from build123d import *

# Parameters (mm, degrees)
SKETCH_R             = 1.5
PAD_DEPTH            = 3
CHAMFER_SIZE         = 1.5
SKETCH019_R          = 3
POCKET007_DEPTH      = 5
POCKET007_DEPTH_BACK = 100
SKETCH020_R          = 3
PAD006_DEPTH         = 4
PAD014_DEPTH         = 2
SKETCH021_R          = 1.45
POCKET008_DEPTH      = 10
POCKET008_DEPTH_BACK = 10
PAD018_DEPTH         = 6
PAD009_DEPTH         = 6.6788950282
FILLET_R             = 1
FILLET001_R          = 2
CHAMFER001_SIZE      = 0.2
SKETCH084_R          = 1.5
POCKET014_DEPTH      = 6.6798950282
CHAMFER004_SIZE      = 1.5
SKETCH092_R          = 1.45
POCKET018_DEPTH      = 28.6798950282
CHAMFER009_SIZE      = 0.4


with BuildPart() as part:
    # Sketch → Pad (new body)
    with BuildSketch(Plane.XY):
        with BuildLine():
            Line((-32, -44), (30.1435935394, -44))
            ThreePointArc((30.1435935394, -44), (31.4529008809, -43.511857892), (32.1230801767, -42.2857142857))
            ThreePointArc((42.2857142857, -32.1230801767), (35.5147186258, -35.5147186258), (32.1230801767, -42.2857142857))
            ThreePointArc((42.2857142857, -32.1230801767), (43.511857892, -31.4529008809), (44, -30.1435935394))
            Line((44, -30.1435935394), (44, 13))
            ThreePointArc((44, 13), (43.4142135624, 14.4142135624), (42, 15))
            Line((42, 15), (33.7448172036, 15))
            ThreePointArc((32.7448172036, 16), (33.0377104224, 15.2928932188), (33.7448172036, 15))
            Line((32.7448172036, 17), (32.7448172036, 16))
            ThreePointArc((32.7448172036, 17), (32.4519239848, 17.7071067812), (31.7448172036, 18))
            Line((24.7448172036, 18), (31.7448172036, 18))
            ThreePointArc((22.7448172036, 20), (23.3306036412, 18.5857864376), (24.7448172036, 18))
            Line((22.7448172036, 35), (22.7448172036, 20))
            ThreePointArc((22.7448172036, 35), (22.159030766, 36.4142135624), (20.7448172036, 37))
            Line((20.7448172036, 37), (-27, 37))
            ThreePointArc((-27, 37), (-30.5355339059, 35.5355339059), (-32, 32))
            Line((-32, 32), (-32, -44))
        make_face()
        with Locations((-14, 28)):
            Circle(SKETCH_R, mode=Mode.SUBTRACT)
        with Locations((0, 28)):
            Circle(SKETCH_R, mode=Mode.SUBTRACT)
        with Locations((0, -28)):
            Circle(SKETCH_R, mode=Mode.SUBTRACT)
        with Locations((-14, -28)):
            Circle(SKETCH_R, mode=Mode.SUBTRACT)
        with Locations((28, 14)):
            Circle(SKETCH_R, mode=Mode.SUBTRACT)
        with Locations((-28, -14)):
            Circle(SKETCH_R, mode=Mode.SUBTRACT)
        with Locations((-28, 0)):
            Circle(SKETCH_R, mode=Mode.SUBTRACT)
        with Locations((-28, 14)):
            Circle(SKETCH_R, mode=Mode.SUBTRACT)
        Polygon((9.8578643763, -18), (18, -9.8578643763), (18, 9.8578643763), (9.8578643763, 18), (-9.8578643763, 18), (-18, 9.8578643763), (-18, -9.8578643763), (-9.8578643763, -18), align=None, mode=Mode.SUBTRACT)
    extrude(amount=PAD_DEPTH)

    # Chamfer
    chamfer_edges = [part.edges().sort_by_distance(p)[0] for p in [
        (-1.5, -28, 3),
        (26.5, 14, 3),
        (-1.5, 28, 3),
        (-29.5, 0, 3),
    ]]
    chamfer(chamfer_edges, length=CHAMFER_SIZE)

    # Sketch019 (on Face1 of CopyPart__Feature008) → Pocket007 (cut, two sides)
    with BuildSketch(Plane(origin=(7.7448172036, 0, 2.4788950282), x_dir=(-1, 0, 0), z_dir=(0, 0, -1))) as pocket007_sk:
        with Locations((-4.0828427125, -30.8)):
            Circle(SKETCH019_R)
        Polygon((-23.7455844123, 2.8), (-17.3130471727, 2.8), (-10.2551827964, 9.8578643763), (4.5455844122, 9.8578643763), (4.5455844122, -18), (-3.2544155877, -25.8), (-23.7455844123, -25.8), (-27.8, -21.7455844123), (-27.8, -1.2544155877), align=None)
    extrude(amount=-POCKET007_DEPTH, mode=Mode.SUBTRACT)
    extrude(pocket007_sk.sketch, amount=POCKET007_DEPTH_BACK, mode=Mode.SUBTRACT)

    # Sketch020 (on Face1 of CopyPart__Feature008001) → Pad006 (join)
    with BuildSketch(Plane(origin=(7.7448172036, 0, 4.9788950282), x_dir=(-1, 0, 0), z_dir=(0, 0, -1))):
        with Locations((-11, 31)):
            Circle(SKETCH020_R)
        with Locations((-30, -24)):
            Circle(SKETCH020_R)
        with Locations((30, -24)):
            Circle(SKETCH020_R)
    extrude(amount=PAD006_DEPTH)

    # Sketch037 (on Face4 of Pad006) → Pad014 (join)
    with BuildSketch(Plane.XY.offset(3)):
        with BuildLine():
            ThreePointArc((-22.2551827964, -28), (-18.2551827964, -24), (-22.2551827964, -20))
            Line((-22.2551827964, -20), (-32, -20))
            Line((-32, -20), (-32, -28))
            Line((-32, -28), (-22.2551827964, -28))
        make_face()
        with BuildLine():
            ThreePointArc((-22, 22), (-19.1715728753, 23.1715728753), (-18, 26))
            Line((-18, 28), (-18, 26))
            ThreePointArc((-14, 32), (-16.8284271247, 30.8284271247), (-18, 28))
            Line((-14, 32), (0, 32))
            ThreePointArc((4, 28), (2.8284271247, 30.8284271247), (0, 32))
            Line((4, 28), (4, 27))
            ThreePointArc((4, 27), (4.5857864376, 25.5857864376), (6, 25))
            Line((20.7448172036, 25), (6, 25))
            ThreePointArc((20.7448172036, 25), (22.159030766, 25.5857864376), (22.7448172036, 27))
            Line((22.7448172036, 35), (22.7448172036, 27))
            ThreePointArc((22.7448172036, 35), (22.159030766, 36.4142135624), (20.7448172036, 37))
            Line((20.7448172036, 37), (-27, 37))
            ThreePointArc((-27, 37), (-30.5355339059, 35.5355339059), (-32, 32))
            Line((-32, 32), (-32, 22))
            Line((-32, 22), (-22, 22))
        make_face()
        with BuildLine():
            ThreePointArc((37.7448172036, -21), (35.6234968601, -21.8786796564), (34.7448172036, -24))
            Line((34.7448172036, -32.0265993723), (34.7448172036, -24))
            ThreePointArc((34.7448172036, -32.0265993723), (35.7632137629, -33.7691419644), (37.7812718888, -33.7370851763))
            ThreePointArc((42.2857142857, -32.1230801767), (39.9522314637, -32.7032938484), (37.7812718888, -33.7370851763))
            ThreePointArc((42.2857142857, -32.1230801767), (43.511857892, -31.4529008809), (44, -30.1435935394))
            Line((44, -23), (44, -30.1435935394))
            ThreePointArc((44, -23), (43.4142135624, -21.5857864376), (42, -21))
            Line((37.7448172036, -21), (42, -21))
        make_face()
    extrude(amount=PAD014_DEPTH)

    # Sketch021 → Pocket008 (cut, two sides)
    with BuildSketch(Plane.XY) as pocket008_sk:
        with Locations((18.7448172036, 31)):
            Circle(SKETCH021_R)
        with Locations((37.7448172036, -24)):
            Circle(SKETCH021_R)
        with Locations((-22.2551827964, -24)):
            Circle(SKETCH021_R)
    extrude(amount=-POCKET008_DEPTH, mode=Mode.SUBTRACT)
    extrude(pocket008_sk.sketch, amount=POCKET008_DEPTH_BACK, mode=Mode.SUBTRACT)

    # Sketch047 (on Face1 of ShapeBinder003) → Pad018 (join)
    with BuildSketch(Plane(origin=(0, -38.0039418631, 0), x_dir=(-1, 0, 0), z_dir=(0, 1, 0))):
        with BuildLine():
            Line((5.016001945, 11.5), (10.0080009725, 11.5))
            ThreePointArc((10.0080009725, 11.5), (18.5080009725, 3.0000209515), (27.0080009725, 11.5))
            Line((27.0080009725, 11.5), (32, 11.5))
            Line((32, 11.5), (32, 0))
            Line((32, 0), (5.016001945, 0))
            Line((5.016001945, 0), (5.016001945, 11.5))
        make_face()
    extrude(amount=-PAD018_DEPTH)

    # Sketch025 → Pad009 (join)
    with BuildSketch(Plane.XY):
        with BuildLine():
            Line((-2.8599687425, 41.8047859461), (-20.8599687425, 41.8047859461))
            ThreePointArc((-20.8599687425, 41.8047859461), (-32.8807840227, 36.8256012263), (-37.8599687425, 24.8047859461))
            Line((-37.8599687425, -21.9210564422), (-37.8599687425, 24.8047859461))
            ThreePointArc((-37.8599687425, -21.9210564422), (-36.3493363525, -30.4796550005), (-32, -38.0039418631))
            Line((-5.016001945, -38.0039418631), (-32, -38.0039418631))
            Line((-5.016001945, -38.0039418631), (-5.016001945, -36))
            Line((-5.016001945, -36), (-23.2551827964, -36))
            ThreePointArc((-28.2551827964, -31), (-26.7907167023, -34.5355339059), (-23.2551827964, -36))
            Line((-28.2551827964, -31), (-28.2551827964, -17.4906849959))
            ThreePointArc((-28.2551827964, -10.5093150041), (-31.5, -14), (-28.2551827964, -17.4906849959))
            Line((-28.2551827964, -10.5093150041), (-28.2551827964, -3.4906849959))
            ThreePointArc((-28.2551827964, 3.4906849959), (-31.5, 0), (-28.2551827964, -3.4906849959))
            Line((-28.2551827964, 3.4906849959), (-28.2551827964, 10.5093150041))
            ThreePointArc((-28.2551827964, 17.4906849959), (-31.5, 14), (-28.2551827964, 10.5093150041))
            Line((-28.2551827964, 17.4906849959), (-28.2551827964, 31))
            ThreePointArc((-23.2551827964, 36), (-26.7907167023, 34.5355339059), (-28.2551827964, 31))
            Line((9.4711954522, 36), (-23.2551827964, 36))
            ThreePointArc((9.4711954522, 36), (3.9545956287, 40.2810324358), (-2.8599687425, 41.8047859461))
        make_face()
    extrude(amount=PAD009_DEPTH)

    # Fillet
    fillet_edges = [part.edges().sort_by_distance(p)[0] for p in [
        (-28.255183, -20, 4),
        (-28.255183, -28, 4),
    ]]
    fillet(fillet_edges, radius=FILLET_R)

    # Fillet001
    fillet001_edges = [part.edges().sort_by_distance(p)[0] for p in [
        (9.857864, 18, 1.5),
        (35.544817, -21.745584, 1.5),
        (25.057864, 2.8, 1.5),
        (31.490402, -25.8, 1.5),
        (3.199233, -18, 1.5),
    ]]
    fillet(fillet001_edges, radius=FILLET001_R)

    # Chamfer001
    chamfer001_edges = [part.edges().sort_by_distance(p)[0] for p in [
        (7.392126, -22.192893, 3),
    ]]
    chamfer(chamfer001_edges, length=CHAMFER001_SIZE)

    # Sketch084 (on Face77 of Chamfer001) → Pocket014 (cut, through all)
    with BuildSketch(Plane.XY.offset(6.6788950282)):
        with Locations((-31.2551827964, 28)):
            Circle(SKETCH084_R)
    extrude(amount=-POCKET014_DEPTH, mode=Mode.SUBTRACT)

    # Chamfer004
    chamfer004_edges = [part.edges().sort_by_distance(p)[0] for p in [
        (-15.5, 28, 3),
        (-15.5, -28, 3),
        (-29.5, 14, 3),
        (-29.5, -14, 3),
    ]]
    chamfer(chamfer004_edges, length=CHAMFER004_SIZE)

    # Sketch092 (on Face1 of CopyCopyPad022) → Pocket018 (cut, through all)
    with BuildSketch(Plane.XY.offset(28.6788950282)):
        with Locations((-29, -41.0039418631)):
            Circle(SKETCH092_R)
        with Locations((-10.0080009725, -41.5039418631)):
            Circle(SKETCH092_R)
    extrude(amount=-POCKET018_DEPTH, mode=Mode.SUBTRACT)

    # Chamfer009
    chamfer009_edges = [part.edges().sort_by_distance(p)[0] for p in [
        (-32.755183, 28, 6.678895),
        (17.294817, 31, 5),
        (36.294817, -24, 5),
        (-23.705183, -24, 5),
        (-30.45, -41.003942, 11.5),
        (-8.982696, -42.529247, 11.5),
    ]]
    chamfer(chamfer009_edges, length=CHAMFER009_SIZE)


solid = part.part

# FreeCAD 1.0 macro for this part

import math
import FreeCAD as App
import Part
import Sketcher
from FreeCAD import Vector


def edges_at(feature, points):
    """Names of the edges that pass closest to the given points."""
    edges = feature.Shape.Edges
    near = lambda p: min(range(len(edges)), key=lambda i: edges[i].distToShape(Part.Vertex(*p))[0])
    return sorted({f"Edge{near(p) + 1}" for p in points})

doc = App.newDocument("Part")
body = doc.addObject("PartDesign::Body", "Body")

# Sketch on XY plane
sketch1 = body.newObject("Sketcher::SketchObject", "Sketch")
sketch1.AttachmentSupport = (doc.getObject("XY_Plane"), [""])
sketch1.MapMode = "FlatFace"
sketch1.addGeometry([
    Part.LineSegment(Vector(-32, -44, 0), Vector(30.1, -44, 0)),  # 0
    Part.ArcOfCircle(Part.Circle(Vector(30.1, -42, 0), Vector(0, 0, 1), 2), math.radians(-90), math.radians(-8)),  # 1
    Part.ArcOfCircle(Part.Circle(Vector(44, -44, 0), Vector(0, 0, 1), 12), math.radians(98), math.radians(172)),  # 2
    Part.ArcOfCircle(Part.Circle(Vector(42, -30.1, 0), Vector(0, 0, 1), 2), math.radians(-82), math.radians(0)),  # 3
    Part.LineSegment(Vector(44, -30.1, 0), Vector(44, 13, 0)),  # 4
    Part.ArcOfCircle(Part.Circle(Vector(42, 13, 0), Vector(0, 0, 1), 2), math.radians(0), math.radians(90)),  # 5
    Part.LineSegment(Vector(42, 15, 0), Vector(33.7, 15, 0)),  # 6
    Part.ArcOfCircle(Part.Circle(Vector(33.7, 16, 0), Vector(0, 0, 1), 1), math.radians(180), math.radians(270)),  # 7
    Part.LineSegment(Vector(32.7, 16, 0), Vector(32.7, 17, 0)),  # 8
    Part.ArcOfCircle(Part.Circle(Vector(31.7, 17, 0), Vector(0, 0, 1), 1), math.radians(0), math.radians(90)),  # 9
    Part.LineSegment(Vector(31.7, 18, 0), Vector(24.7, 18, 0)),  # 10
    Part.ArcOfCircle(Part.Circle(Vector(24.7, 20, 0), Vector(0, 0, 1), 2), math.radians(180), math.radians(270)),  # 11
    Part.LineSegment(Vector(22.7, 20, 0), Vector(22.7, 35, 0)),  # 12
    Part.ArcOfCircle(Part.Circle(Vector(20.7, 35, 0), Vector(0, 0, 1), 2), math.radians(0), math.radians(90)),  # 13
    Part.LineSegment(Vector(20.7, 37, 0), Vector(-27, 37, 0)),  # 14
    Part.ArcOfCircle(Part.Circle(Vector(-27, 32, 0), Vector(0, 0, 1), 5), math.radians(90), math.radians(180)),  # 15
    Part.LineSegment(Vector(-32, 32, 0), Vector(-32, -44, 0)),  # 16
    Part.Circle(Vector(-14, -28, 0), Vector(0, 0, 1), 1.5),  # 17
    Part.Circle(Vector(-28, -14, 0), Vector(0, 0, 1), 1.5),  # 18
    Part.Circle(Vector(0, -28, 0), Vector(0, 0, 1), 1.5),  # 19
    Part.Circle(Vector(-28, 0, 0), Vector(0, 0, 1), 1.5),  # 20
    Part.Circle(Vector(-28, 14, 0), Vector(0, 0, 1), 1.5),  # 21
    Part.Circle(Vector(-14, 28, 0), Vector(0, 0, 1), 1.5),  # 22
    Part.LineSegment(Vector(18, -9.9, 0), Vector(9.9, -18, 0)),  # 23
    Part.LineSegment(Vector(9.9, -18, 0), Vector(-9.9, -18, 0)),  # 24
    Part.LineSegment(Vector(-9.9, -18, 0), Vector(-18, -9.9, 0)),  # 25
    Part.LineSegment(Vector(-18, -9.9, 0), Vector(-18, 9.9, 0)),  # 26
    Part.LineSegment(Vector(-18, 9.9, 0), Vector(-9.9, 18, 0)),  # 27
    Part.LineSegment(Vector(-9.9, 18, 0), Vector(9.9, 18, 0)),  # 28
    Part.LineSegment(Vector(9.9, 18, 0), Vector(18, 9.9, 0)),  # 29
    Part.LineSegment(Vector(18, 9.9, 0), Vector(18, -9.9, 0)),  # 30
    Part.Circle(Vector(28, 14, 0), Vector(0, 0, 1), 1.5),  # 31
    Part.Circle(Vector(0, 28, 0), Vector(0, 0, 1), 1.5),  # 32
], False)
sketch1.addConstraint([
    Sketcher.Constraint("Tangent", 0, 2, 1, 1),
    Sketcher.Constraint("Tangent", 1, 2, 2, 2),
    Sketcher.Constraint("Tangent", 2, 1, 3, 1),
    Sketcher.Constraint("Tangent", 3, 2, 4, 1),
    Sketcher.Constraint("Tangent", 4, 2, 5, 1),
    Sketcher.Constraint("Tangent", 5, 2, 6, 1),
    Sketcher.Constraint("Tangent", 6, 2, 7, 2),
    Sketcher.Constraint("Tangent", 7, 1, 8, 1),
    Sketcher.Constraint("Tangent", 8, 2, 9, 1),
    Sketcher.Constraint("Tangent", 9, 2, 10, 1),
    Sketcher.Constraint("Tangent", 10, 2, 11, 2),
    Sketcher.Constraint("Tangent", 11, 1, 12, 1),
    Sketcher.Constraint("Tangent", 12, 2, 13, 1),
    Sketcher.Constraint("Tangent", 13, 2, 14, 1),
    Sketcher.Constraint("Tangent", 14, 2, 15, 1),
    Sketcher.Constraint("Tangent", 15, 2, 16, 1),
    Sketcher.Constraint("Coincident", 16, 2, 0, 1),
    Sketcher.Constraint("Coincident", 23, 2, 24, 1),
    Sketcher.Constraint("Coincident", 24, 2, 25, 1),
    Sketcher.Constraint("Coincident", 25, 2, 26, 1),
    Sketcher.Constraint("Coincident", 26, 2, 27, 1),
    Sketcher.Constraint("Coincident", 27, 2, 28, 1),
    Sketcher.Constraint("Coincident", 28, 2, 29, 1),
    Sketcher.Constraint("Coincident", 29, 2, 30, 1),
    Sketcher.Constraint("Coincident", 30, 2, 23, 1),
    Sketcher.Constraint("Horizontal", 0),
    Sketcher.Constraint("Vertical", 4),
    Sketcher.Constraint("Horizontal", 6),
    Sketcher.Constraint("Vertical", 8),
    Sketcher.Constraint("Horizontal", 10),
    Sketcher.Constraint("Vertical", 12),
    Sketcher.Constraint("Horizontal", 14),
    Sketcher.Constraint("Vertical", 16),
    Sketcher.Constraint("Horizontal", 24),
    Sketcher.Constraint("Vertical", 26),
    Sketcher.Constraint("Horizontal", 28),
    Sketcher.Constraint("Vertical", 30),
    Sketcher.Constraint("Equal", 1, 3),
    Sketcher.Constraint("Equal", 3, 5),
    Sketcher.Constraint("Equal", 7, 9),
    Sketcher.Constraint("Equal", 5, 11),
    Sketcher.Constraint("Equal", 11, 13),
    Sketcher.Constraint("Equal", 17, 18),
    Sketcher.Constraint("Equal", 18, 19),
    Sketcher.Constraint("Equal", 19, 20),
    Sketcher.Constraint("Equal", 20, 21),
    Sketcher.Constraint("Equal", 21, 22),
    Sketcher.Constraint("Equal", 22, 31),
    Sketcher.Constraint("Equal", 31, 32),
    Sketcher.Constraint("Symmetric", 18, 3, 31, 3, -1, 1),
    Sketcher.Constraint("Symmetric", 19, 3, 32, 3, -1, 1),
    Sketcher.Constraint("Symmetric", 23, 2, 27, 2, -1, 1),
    Sketcher.Constraint("Symmetric", 25, 2, 29, 2, -1, 1),
    Sketcher.Constraint("Symmetric", 21, 3, 31, 3, -2),
    Sketcher.Constraint("Symmetric", 17, 3, 22, 3, -1),
    Sketcher.Constraint("PointOnObject", 19, 3, -2),
    Sketcher.Constraint("PointOnObject", 20, 3, -1),
    Sketcher.Constraint("Perpendicular", 23, 25),
    Sketcher.Constraint("Perpendicular", 25, 27),
    Sketcher.Constraint("Perpendicular", 27, 29),
    Sketcher.Constraint("Horizontal", 17, 3, 19, 3),
    Sketcher.Constraint("Horizontal", 2, 3, 0, 2),
    Sketcher.Constraint("Horizontal", 10, 2, 27, 2),
    Sketcher.Constraint("Horizontal", 26, 2, 29, 2),
    Sketcher.Constraint("Vertical", 18, 3, 20, 3),
    Sketcher.Constraint("Vertical", 2, 3, 3, 2),
    Sketcher.Constraint("Vertical", 24, 2, 27, 2),
    Sketcher.Constraint("Equal", 28, 26),
    Sketcher.Constraint("Diameter", 17, 3.0),
    Sketcher.Constraint("Radius", 1, 2.0),
    Sketcher.Constraint("Radius", 2, 12.0),
    Sketcher.Constraint("Radius", 7, 1.0),
    Sketcher.Constraint("Radius", 15, 5.0),
    Sketcher.Constraint("DistanceX", 10, 2, 10, 1, 7.0),
    Sketcher.Constraint("DistanceY", 8, 1, 8, 2, 1.0),
    Sketcher.Constraint("DistanceY", 12, 1, 12, 2, 15.0),
    Sketcher.Constraint("DistanceY", 16, 2, 16, 1, 76.0),
    Sketcher.Constraint("DistanceY", 1, 3, -1, 1, 42.0),
    Sketcher.Constraint("DistanceX", -1, 1, 2, 3, 44.0),
    Sketcher.Constraint("DistanceX", 15, 3, -1, 1, 27.0),
    Sketcher.Constraint("DistanceX", 17, 3, -1, 1, 14.0),
    Sketcher.Constraint("DistanceY", 17, 3, -1, 1, 28.0),
    Sketcher.Constraint("DistanceX", 18, 3, -1, 1, 28.0),
    Sketcher.Constraint("DistanceY", 18, 3, -1, 1, 14.0),
    Sketcher.Constraint("DistanceX", 24, 2, 24, 1, 19.715729),
    Sketcher.Constraint("DistanceX", 6, 2, 6, 1, 8.255183),
])
pad1 = body.newObject("PartDesign::Pad", "Pad")
pad1.Profile = sketch1
pad1.Length = 3
doc.recompute()

chamfer = body.newObject("PartDesign::Chamfer", "Chamfer")
chamfer.Base = (pad1, edges_at(pad1, [
    (-1.5, -28, 3),
    (26.5, 14, 3),
    (-1.5, 28, 3),
    (-29.5, 0, 3),
]))
chamfer.Size = 1.5

# Sketch on XY plane
sketch2 = body.newObject("Sketcher::SketchObject", "Sketch001")
sketch2.AttachmentSupport = (doc.getObject("XY_Plane"), [""])
sketch2.MapMode = "FlatFace"
sketch2.AttachmentOffset = App.Placement(Vector(0, 0, 2.478895), App.Rotation())
sketch2.addGeometry([
    Part.Circle(Vector(11.8, -30.8, 0), Vector(0, 0, 1), 3),  # 0
    Part.LineSegment(Vector(25.1, 2.8, 0), Vector(31.5, 2.8, 0)),  # 1
    Part.LineSegment(Vector(31.5, 2.8, 0), Vector(35.5, -1.3, 0)),  # 2
    Part.LineSegment(Vector(35.5, -1.3, 0), Vector(35.5, -21.7, 0)),  # 3
    Part.LineSegment(Vector(35.5, -21.7, 0), Vector(31.5, -25.8, 0)),  # 4
    Part.LineSegment(Vector(31.5, -25.8, 0), Vector(11, -25.8, 0)),  # 5
    Part.LineSegment(Vector(11, -25.8, 0), Vector(3.2, -18, 0)),  # 6
    Part.LineSegment(Vector(3.2, -18, 0), Vector(3.2, 9.9, 0)),  # 7
    Part.LineSegment(Vector(3.2, 9.9, 0), Vector(18, 9.9, 0)),  # 8
    Part.LineSegment(Vector(18, 9.9, 0), Vector(25.1, 2.8, 0)),  # 9
], False)
sketch2.addConstraint([
    Sketcher.Constraint("Coincident", 1, 2, 2, 1),
    Sketcher.Constraint("Coincident", 2, 2, 3, 1),
    Sketcher.Constraint("Coincident", 3, 2, 4, 1),
    Sketcher.Constraint("Coincident", 4, 2, 5, 1),
    Sketcher.Constraint("Coincident", 5, 2, 6, 1),
    Sketcher.Constraint("Coincident", 6, 2, 7, 1),
    Sketcher.Constraint("Coincident", 7, 2, 8, 1),
    Sketcher.Constraint("Coincident", 8, 2, 9, 1),
    Sketcher.Constraint("Coincident", 9, 2, 1, 1),
    Sketcher.Constraint("Horizontal", 1),
    Sketcher.Constraint("Vertical", 3),
    Sketcher.Constraint("Horizontal", 5),
    Sketcher.Constraint("Vertical", 7),
    Sketcher.Constraint("Horizontal", 8),
    Sketcher.Constraint("Perpendicular", 2, 4),
    Sketcher.Constraint("Perpendicular", 4, 6),
    Sketcher.Constraint("Parallel", 6, 9),
    Sketcher.Constraint("Vertical", 1, 2, 4, 2),
    Sketcher.Constraint("Equal", 5, 3),
    Sketcher.Constraint("Equal", 2, 4),
    Sketcher.Constraint("Diameter", 0, 6.0),
    Sketcher.Constraint("DistanceY", 6, 2, -1, 1, 18.0),
    Sketcher.Constraint("DistanceX", -1, 1, 8, 2, 18.0),
    Sketcher.Constraint("DistanceY", 0, 3, 4, 2, 5.0),
    Sketcher.Constraint("DistanceY", 0, 3, -1, 1, 30.8),
    Sketcher.Constraint("DistanceY", -1, 1, 1, 2, 2.8),
    Sketcher.Constraint("DistanceX", 5, 2, 5, 1, 20.491169),
    Sketcher.Constraint("DistanceX", -1, 1, 1, 2, 31.490402),
    Sketcher.Constraint("DistanceX", 1, 1, 1, 2, 6.432537),
    Sketcher.Constraint("DistanceX", -1, 1, 0, 3, 11.82766),
])
pocket1 = body.newObject("PartDesign::Pocket", "Pocket")
pocket1.Profile = sketch2
pocket1.Type = "ThroughAll"
pocket1.Midplane = True

# Sketch on XY plane
sketch3 = body.newObject("Sketcher::SketchObject", "Sketch002")
sketch3.AttachmentSupport = (doc.getObject("XY_Plane"), [""])
sketch3.MapMode = "FlatFace"
sketch3.AttachmentOffset = App.Placement(Vector(0, 0, 4.978895), App.Rotation())
sketch3.addGeometry([
    Part.Circle(Vector(18.7, 31, 0), Vector(0, 0, 1), 3),
    Part.Circle(Vector(37.7, -24, 0), Vector(0, 0, 1), 3),
    Part.Circle(Vector(-22.3, -24, 0), Vector(0, 0, 1), 3),
], False)
sketch3.addConstraint([
    Sketcher.Constraint("Equal", 0, 1),
    Sketcher.Constraint("Equal", 1, 2),
    Sketcher.Constraint("Horizontal", 1, 3, 2, 3),
    Sketcher.Constraint("Diameter", 0, 6.0),
    Sketcher.Constraint("DistanceY", -1, 1, 0, 3, 31.0),
    Sketcher.Constraint("DistanceY", 1, 3, -1, 1, 24.0),
    Sketcher.Constraint("DistanceX", 0, 3, 1, 3, 19.0),
    Sketcher.Constraint("DistanceX", 2, 3, 1, 3, 60.0),
    Sketcher.Constraint("DistanceX", -1, 1, 0, 3, 18.744817),
])
pad2 = body.newObject("PartDesign::Pad", "Pad001")
pad2.Profile = sketch3
pad2.Length = 4
pad2.Reversed = True

# Sketch on XY plane
sketch4 = body.newObject("Sketcher::SketchObject", "Sketch003")
sketch4.AttachmentSupport = (doc.getObject("XY_Plane"), [""])
sketch4.MapMode = "FlatFace"
sketch4.AttachmentOffset = App.Placement(Vector(0, 0, 3), App.Rotation())
sketch4.addGeometry([
    Part.ArcOfCircle(Part.Circle(Vector(-22.3, -24, 0), Vector(0, 0, 1), 4), math.radians(-90), math.radians(90)),  # 0
    Part.LineSegment(Vector(-22.3, -20, 0), Vector(-32, -20, 0)),  # 1
    Part.LineSegment(Vector(-32, -20, 0), Vector(-32, -28, 0)),  # 2
    Part.LineSegment(Vector(-32, -28, 0), Vector(-22.3, -28, 0)),  # 3
    Part.ArcOfCircle(Part.Circle(Vector(-22, 26, 0), Vector(0, 0, 1), 4), math.radians(-90), math.radians(0)),  # 4
    Part.LineSegment(Vector(-18, 26, 0), Vector(-18, 28, 0)),  # 5
    Part.ArcOfCircle(Part.Circle(Vector(-14, 28, 0), Vector(0, 0, 1), 4), math.radians(90), math.radians(180)),  # 6
    Part.LineSegment(Vector(-14, 32, 0), Vector(0, 32, 0)),  # 7
    Part.ArcOfCircle(Part.Circle(Vector(0, 28, 0), Vector(0, 0, 1), 4), math.radians(0), math.radians(90)),  # 8
    Part.LineSegment(Vector(4, 28, 0), Vector(4, 27, 0)),  # 9
    Part.ArcOfCircle(Part.Circle(Vector(6, 27, 0), Vector(0, 0, 1), 2), math.radians(180), math.radians(270)),  # 10
    Part.LineSegment(Vector(6, 25, 0), Vector(20.7, 25, 0)),  # 11
    Part.ArcOfCircle(Part.Circle(Vector(20.7, 27, 0), Vector(0, 0, 1), 2), math.radians(-90), math.radians(0)),  # 12
    Part.LineSegment(Vector(22.7, 27, 0), Vector(22.7, 35, 0)),  # 13
    Part.ArcOfCircle(Part.Circle(Vector(20.7, 35, 0), Vector(0, 0, 1), 2), math.radians(0), math.radians(90)),  # 14
    Part.LineSegment(Vector(20.7, 37, 0), Vector(-27, 37, 0)),  # 15
    Part.ArcOfCircle(Part.Circle(Vector(-27, 32, 0), Vector(0, 0, 1), 5), math.radians(90), math.radians(180)),  # 16
    Part.LineSegment(Vector(-32, 32, 0), Vector(-32, 22, 0)),  # 17
    Part.LineSegment(Vector(-32, 22, 0), Vector(-22, 22, 0)),  # 18
    Part.ArcOfCircle(Part.Circle(Vector(37.7, -24, 0), Vector(0, 0, 1), 3), math.radians(90), math.radians(180)),  # 19
    Part.LineSegment(Vector(34.7, -24, 0), Vector(34.7, -32, 0)),  # 20
    Part.ArcOfCircle(Part.Circle(Vector(36.7, -32, 0), Vector(0, 0, 1), 2), math.radians(180), math.radians(301)),  # 21
    Part.ArcOfCircle(Part.Circle(Vector(44, -44, 0), Vector(0, 0, 1), 12), math.radians(98), math.radians(121)),  # 22
    Part.ArcOfCircle(Part.Circle(Vector(42, -30.1, 0), Vector(0, 0, 1), 2), math.radians(-82), math.radians(0)),  # 23
    Part.LineSegment(Vector(44, -30.1, 0), Vector(44, -23, 0)),  # 24
    Part.ArcOfCircle(Part.Circle(Vector(42, -23, 0), Vector(0, 0, 1), 2), math.radians(0), math.radians(90)),  # 25
    Part.LineSegment(Vector(42, -21, 0), Vector(37.7, -21, 0)),  # 26
], False)
sketch4.addConstraint([
    Sketcher.Constraint("Tangent", 0, 2, 1, 1),
    Sketcher.Constraint("Coincident", 1, 2, 2, 1),
    Sketcher.Constraint("Coincident", 2, 2, 3, 1),
    Sketcher.Constraint("Tangent", 3, 2, 0, 1),
    Sketcher.Constraint("Tangent", 4, 2, 5, 1),
    Sketcher.Constraint("Tangent", 5, 2, 6, 2),
    Sketcher.Constraint("Tangent", 6, 1, 7, 1),
    Sketcher.Constraint("Tangent", 7, 2, 8, 2),
    Sketcher.Constraint("Tangent", 8, 1, 9, 1),
    Sketcher.Constraint("Tangent", 9, 2, 10, 1),
    Sketcher.Constraint("Tangent", 10, 2, 11, 1),
    Sketcher.Constraint("Tangent", 11, 2, 12, 1),
    Sketcher.Constraint("Tangent", 12, 2, 13, 1),
    Sketcher.Constraint("Tangent", 13, 2, 14, 1),
    Sketcher.Constraint("Tangent", 14, 2, 15, 1),
    Sketcher.Constraint("Tangent", 15, 2, 16, 1),
    Sketcher.Constraint("Tangent", 16, 2, 17, 1),
    Sketcher.Constraint("Coincident", 17, 2, 18, 1),
    Sketcher.Constraint("Tangent", 18, 2, 4, 1),
    Sketcher.Constraint("Tangent", 19, 2, 20, 1),
    Sketcher.Constraint("Tangent", 20, 2, 21, 1),
    Sketcher.Constraint("Tangent", 21, 2, 22, 2),
    Sketcher.Constraint("Tangent", 22, 1, 23, 1),
    Sketcher.Constraint("Tangent", 23, 2, 24, 1),
    Sketcher.Constraint("Tangent", 24, 2, 25, 1),
    Sketcher.Constraint("Tangent", 25, 2, 26, 1),
    Sketcher.Constraint("Tangent", 26, 2, 19, 1),
    Sketcher.Constraint("Horizontal", 1),
    Sketcher.Constraint("Vertical", 2),
    Sketcher.Constraint("Horizontal", 3),
    Sketcher.Constraint("Vertical", 5),
    Sketcher.Constraint("Horizontal", 7),
    Sketcher.Constraint("Vertical", 9),
    Sketcher.Constraint("Horizontal", 11),
    Sketcher.Constraint("Vertical", 13),
    Sketcher.Constraint("Horizontal", 15),
    Sketcher.Constraint("Vertical", 17),
    Sketcher.Constraint("Horizontal", 18),
    Sketcher.Constraint("Vertical", 20),
    Sketcher.Constraint("Vertical", 24),
    Sketcher.Constraint("Horizontal", 26),
    Sketcher.Constraint("Equal", 0, 4),
    Sketcher.Constraint("Equal", 4, 6),
    Sketcher.Constraint("Equal", 6, 8),
    Sketcher.Constraint("Equal", 10, 12),
    Sketcher.Constraint("Equal", 12, 14),
    Sketcher.Constraint("Equal", 14, 21),
    Sketcher.Constraint("Equal", 21, 23),
    Sketcher.Constraint("Equal", 23, 25),
    Sketcher.Constraint("PointOnObject", 8, 3, -2),
    Sketcher.Constraint("Horizontal", 0, 3, 19, 3),
    Sketcher.Constraint("Horizontal", 16, 3, 6, 1),
    Sketcher.Constraint("Vertical", 2, 2, 16, 2),
    Sketcher.Constraint("Vertical", 22, 3, 23, 2),
    Sketcher.Constraint("Equal", 2, 13),
    Sketcher.Constraint("Equal", 18, 17),
    Sketcher.Constraint("Radius", 0, 4.0),
    Sketcher.Constraint("Radius", 10, 2.0),
    Sketcher.Constraint("Radius", 16, 5.0),
    Sketcher.Constraint("Radius", 19, 3.0),
    Sketcher.Constraint("Radius", 22, 12.0),
    Sketcher.Constraint("DistanceX", 7, 1, 7, 2, 14.0),
    Sketcher.Constraint("DistanceX", 18, 1, 18, 2, 10.0),
    Sketcher.Constraint("DistanceY", 0, 3, -1, 1, 24.0),
    Sketcher.Constraint("DistanceY", -1, 1, 4, 3, 26.0),
    Sketcher.Constraint("DistanceX", -1, 1, 22, 3, 44.0),
    Sketcher.Constraint("DistanceY", 22, 3, -1, 1, 44.0),
    Sketcher.Constraint("DistanceX", 0, 3, 12, 3, 43.0),
    Sketcher.Constraint("DistanceX", 12, 3, 19, 3, 17.0),
    Sketcher.Constraint("DistanceY", 20, 2, 20, 1, 8.026599),
])
pad3 = body.newObject("PartDesign::Pad", "Pad002")
pad3.Profile = sketch4
pad3.Length = 2

# Sketch on XY plane
sketch5 = body.newObject("Sketcher::SketchObject", "Sketch004")
sketch5.AttachmentSupport = (doc.getObject("XY_Plane"), [""])
sketch5.MapMode = "FlatFace"
sketch5.addGeometry([
    Part.Circle(Vector(18.7, 31, 0), Vector(0, 0, 1), 1.4),
    Part.Circle(Vector(37.7, -24, 0), Vector(0, 0, 1), 1.4),
    Part.Circle(Vector(-22.3, -24, 0), Vector(0, 0, 1), 1.4),
], False)
sketch5.addConstraint([
    Sketcher.Constraint("Equal", 0, 1),
    Sketcher.Constraint("Equal", 1, 2),
    Sketcher.Constraint("Horizontal", 1, 3, 2, 3),
    Sketcher.Constraint("Diameter", 0, 2.9),
    Sketcher.Constraint("DistanceY", -1, 1, 0, 3, 31.0),
    Sketcher.Constraint("DistanceY", 1, 3, -1, 1, 24.0),
    Sketcher.Constraint("DistanceX", 0, 3, 1, 3, 19.0),
    Sketcher.Constraint("DistanceX", 2, 3, 1, 3, 60.0),
    Sketcher.Constraint("DistanceX", -1, 1, 0, 3, 18.744817),
])
pocket2 = body.newObject("PartDesign::Pocket", "Pocket001")
pocket2.Profile = sketch5
pocket2.Type = "ThroughAll"
pocket2.Midplane = True

# Sketch on XZ plane
sketch6 = body.newObject("Sketcher::SketchObject", "Sketch005")
sketch6.AttachmentSupport = (doc.getObject("XZ_Plane"), [""])
sketch6.MapMode = "FlatFace"
sketch6.AttachmentOffset = App.Placement(Vector(0, 0, 38.003942), App.Rotation())
sketch6.addGeometry([
    Part.LineSegment(Vector(-10, 11.5, 0), Vector(-5, 11.5, 0)),  # 0
    Part.LineSegment(Vector(-5, 11.5, 0), Vector(-5, 0, 0)),  # 1
    Part.LineSegment(Vector(-5, 0, 0), Vector(-32, 0, 0)),  # 2
    Part.LineSegment(Vector(-32, 0, 0), Vector(-32, 11.5, 0)),  # 3
    Part.LineSegment(Vector(-32, 11.5, 0), Vector(-27, 11.5, 0)),  # 4
    Part.ArcOfCircle(Part.Circle(Vector(-18.5, 11.5, 0), Vector(0, 0, 1), 8.5), math.radians(-180), math.radians(0)),  # 5
], False)
sketch6.addConstraint([
    Sketcher.Constraint("Coincident", 0, 2, 1, 1),
    Sketcher.Constraint("Coincident", 1, 2, 2, 1),
    Sketcher.Constraint("Coincident", 2, 2, 3, 1),
    Sketcher.Constraint("Coincident", 3, 2, 4, 1),
    Sketcher.Constraint("Coincident", 4, 2, 5, 1),
    Sketcher.Constraint("Coincident", 5, 2, 0, 1),
    Sketcher.Constraint("Horizontal", 0),
    Sketcher.Constraint("Vertical", 1),
    Sketcher.Constraint("Horizontal", 2),
    Sketcher.Constraint("Vertical", 3),
    Sketcher.Constraint("Horizontal", 4),
    Sketcher.Constraint("PointOnObject", 1, 2, -1),
    Sketcher.Constraint("Horizontal", 0, 2, 3, 2),
    Sketcher.Constraint("Equal", 0, 4),
    Sketcher.Constraint("Radius", 5, 8.5),
    Sketcher.Constraint("DistanceY", 1, 2, 1, 1, 11.5),
    Sketcher.Constraint("DistanceX", 2, 2, -1, 1, 32.0),
    Sketcher.Constraint("DistanceX", 0, 1, 0, 2, 4.991999),
    Sketcher.Constraint("DistanceY", -1, 1, 5, 3, 11.500021),
])
pad4 = body.newObject("PartDesign::Pad", "Pad003")
pad4.Profile = sketch6
pad4.Length = 6

# Sketch on XY plane
sketch7 = body.newObject("Sketcher::SketchObject", "Sketch006")
sketch7.AttachmentSupport = (doc.getObject("XY_Plane"), [""])
sketch7.MapMode = "FlatFace"
sketch7.addGeometry([
    Part.LineSegment(Vector(-2.9, 41.8, 0), Vector(-20.9, 41.8, 0)),  # 0
    Part.ArcOfCircle(Part.Circle(Vector(-20.9, 24.8, 0), Vector(0, 0, 1), 17), math.radians(90), math.radians(180)),  # 1
    Part.LineSegment(Vector(-37.9, 24.8, 0), Vector(-37.9, -21.9, 0)),  # 2
    Part.ArcOfCircle(Part.Circle(Vector(-12.9, -21.9, 0), Vector(0, 0, 1), 25), math.radians(180), math.radians(220)),  # 3
    Part.LineSegment(Vector(-32, -38, 0), Vector(-5, -38, 0)),  # 4
    Part.LineSegment(Vector(-5, -38, 0), Vector(-5, -36, 0)),  # 5
    Part.LineSegment(Vector(-5, -36, 0), Vector(-23.3, -36, 0)),  # 6
    Part.ArcOfCircle(Part.Circle(Vector(-23.3, -31, 0), Vector(0, 0, 1), 5), math.radians(180), math.radians(270)),  # 7
    Part.LineSegment(Vector(-28.3, -31, 0), Vector(-28.3, -17.5, 0)),  # 8
    Part.ArcOfCircle(Part.Circle(Vector(-28, -14, 0), Vector(0, 0, 1), 3.5), math.radians(94), math.radians(266)),  # 9
    Part.LineSegment(Vector(-28.3, -10.5, 0), Vector(-28.3, -3.5, 0)),  # 10
    Part.ArcOfCircle(Part.Circle(Vector(-28, 0, 0), Vector(0, 0, 1), 3.5), math.radians(94), math.radians(266)),  # 11
    Part.LineSegment(Vector(-28.3, 3.5, 0), Vector(-28.3, 10.5, 0)),  # 12
    Part.ArcOfCircle(Part.Circle(Vector(-28, 14, 0), Vector(0, 0, 1), 3.5), math.radians(94), math.radians(266)),  # 13
    Part.LineSegment(Vector(-28.3, 17.5, 0), Vector(-28.3, 31, 0)),  # 14
    Part.ArcOfCircle(Part.Circle(Vector(-23.3, 31, 0), Vector(0, 0, 1), 5), math.radians(90), math.radians(180)),  # 15
    Part.LineSegment(Vector(-23.3, 36, 0), Vector(9.5, 36, 0)),  # 16
    Part.ArcOfCircle(Part.Circle(Vector(-2.9, 25.8, 0), Vector(0, 0, 1), 16), math.radians(40), math.radians(90)),  # 17
], False)
sketch7.addConstraint([
    Sketcher.Constraint("Tangent", 0, 2, 1, 1),
    Sketcher.Constraint("Tangent", 1, 2, 2, 1),
    Sketcher.Constraint("Tangent", 2, 2, 3, 1),
    Sketcher.Constraint("Coincident", 3, 2, 4, 1),
    Sketcher.Constraint("Coincident", 4, 2, 5, 1),
    Sketcher.Constraint("Coincident", 5, 2, 6, 1),
    Sketcher.Constraint("Tangent", 6, 2, 7, 2),
    Sketcher.Constraint("Tangent", 7, 1, 8, 1),
    Sketcher.Constraint("Coincident", 8, 2, 9, 2),
    Sketcher.Constraint("Coincident", 9, 1, 10, 1),
    Sketcher.Constraint("Coincident", 10, 2, 11, 2),
    Sketcher.Constraint("Coincident", 11, 1, 12, 1),
    Sketcher.Constraint("Coincident", 12, 2, 13, 2),
    Sketcher.Constraint("Coincident", 13, 1, 14, 1),
    Sketcher.Constraint("Tangent", 14, 2, 15, 2),
    Sketcher.Constraint("Tangent", 15, 1, 16, 1),
    Sketcher.Constraint("Coincident", 16, 2, 17, 1),
    Sketcher.Constraint("Tangent", 17, 2, 0, 1),
    Sketcher.Constraint("Horizontal", 0),
    Sketcher.Constraint("Vertical", 2),
    Sketcher.Constraint("Horizontal", 4),
    Sketcher.Constraint("Vertical", 5),
    Sketcher.Constraint("Horizontal", 6),
    Sketcher.Constraint("Vertical", 8),
    Sketcher.Constraint("Vertical", 10),
    Sketcher.Constraint("Vertical", 12),
    Sketcher.Constraint("Vertical", 14),
    Sketcher.Constraint("Horizontal", 16),
    Sketcher.Constraint("Equal", 9, 11),
    Sketcher.Constraint("Equal", 11, 13),
    Sketcher.Constraint("Equal", 7, 15),
    Sketcher.Constraint("Symmetric", 9, 3, 13, 3, -1),
    Sketcher.Constraint("Symmetric", 7, 3, 15, 3, -1),
    Sketcher.Constraint("Symmetric", 10, 2, 11, 1, -1),
    Sketcher.Constraint("Vertical", 9, 3, 11, 3),
    Sketcher.Constraint("Vertical", 8, 2, 9, 1),
    Sketcher.Constraint("Radius", 1, 17.0),
    Sketcher.Constraint("Radius", 3, 25.0),
    Sketcher.Constraint("Radius", 7, 5.0),
    Sketcher.Constraint("Radius", 17, 16.0),
    Sketcher.Constraint("Radius", 9, 3.5),
    Sketcher.Constraint("DistanceX", 0, 2, 0, 1, 18.0),
    Sketcher.Constraint("DistanceY", 7, 3, -1, 1, 31.0),
    Sketcher.Constraint("DistanceX", 9, 3, -1, 1, 28.0),
    Sketcher.Constraint("DistanceY", 9, 3, -1, 1, 14.0),
    Sketcher.Constraint("DistanceX", 3, 2, -1, 1, 32.0),
    Sketcher.Constraint("DistanceX", 4, 1, 4, 2, 26.983998),
    Sketcher.Constraint("DistanceX", 6, 2, 6, 1, 18.239181),
    Sketcher.Constraint("DistanceX", 16, 1, 16, 2, 32.726378),
    Sketcher.Constraint("DistanceY", 5, 1, 5, 2, 2.003942),
    Sketcher.Constraint("DistanceY", 13, 1, 1, 3, 7.314101),
])
pad5 = body.newObject("PartDesign::Pad", "Pad004")
pad5.Profile = sketch7
pad5.Length = 6.678895
doc.recompute()

fillet = body.newObject("PartDesign::Fillet", "Fillet")
fillet.Base = (pad5, edges_at(pad5, [(-28.255, -20, 4), (-28.255, -28, 4)]))
fillet.Radius = 1
doc.recompute()

fillet2 = body.newObject("PartDesign::Fillet", "Fillet001")
fillet2.Base = (fillet, edges_at(fillet, [
    (9.858, 18, 1.5),
    (35.545, -21.746, 1.5),
    (25.058, 2.8, 1.5),
    (31.49, -25.8, 1.5),
    (3.199, -18, 1.5),
]))
fillet2.Radius = 2
doc.recompute()

chamfer2 = body.newObject("PartDesign::Chamfer", "Chamfer001")
chamfer2.Base = (fillet2, edges_at(fillet2, [(7.392, -22.193, 3)]))
chamfer2.Size = 0.2

# Sketch on XY plane
sketch8 = body.newObject("Sketcher::SketchObject", "Sketch007")
sketch8.AttachmentSupport = (doc.getObject("XY_Plane"), [""])
sketch8.MapMode = "FlatFace"
sketch8.AttachmentOffset = App.Placement(Vector(0, 0, 6.678895), App.Rotation())
sketch8.addGeometry(Part.Circle(Vector(-31.3, 28, 0), Vector(0, 0, 1), 1.5), False)
sketch8.addConstraint([
    Sketcher.Constraint("Diameter", 0, 3.0),
    Sketcher.Constraint("DistanceY", -1, 1, 0, 3, 28.0),
    Sketcher.Constraint("DistanceX", 0, 3, -1, 1, 31.255183),
])
pocket3 = body.newObject("PartDesign::Pocket", "Pocket002")
pocket3.Profile = sketch8
pocket3.Type = "ThroughAll"
doc.recompute()

chamfer3 = body.newObject("PartDesign::Chamfer", "Chamfer002")
chamfer3.Base = (pocket3, edges_at(pocket3, [
    (-15.5, 28, 3),
    (-15.5, -28, 3),
    (-29.5, 14, 3),
    (-29.5, -14, 3),
]))
chamfer3.Size = 1.5

# Sketch on XY plane
sketch9 = body.newObject("Sketcher::SketchObject", "Sketch008")
sketch9.AttachmentSupport = (doc.getObject("XY_Plane"), [""])
sketch9.MapMode = "FlatFace"
sketch9.AttachmentOffset = App.Placement(Vector(0, 0, 28.678895), App.Rotation())
sketch9.addGeometry([
    Part.Circle(Vector(-29, -41, 0), Vector(0, 0, 1), 1.4),
    Part.Circle(Vector(-10, -41.5, 0), Vector(0, 0, 1), 1.4),
], False)
sketch9.addConstraint([
    Sketcher.Constraint("Equal", 0, 1),
    Sketcher.Constraint("Diameter", 0, 2.9),
    Sketcher.Constraint("DistanceX", 0, 3, -1, 1, 29.0),
    Sketcher.Constraint("DistanceY", 1, 3, 0, 3, 0.5),
    Sketcher.Constraint("DistanceX", 1, 3, -1, 1, 10.008001),
    Sketcher.Constraint("DistanceY", 0, 3, -1, 1, 41.003942),
])
pocket4 = body.newObject("PartDesign::Pocket", "Pocket003")
pocket4.Profile = sketch9
pocket4.Type = "ThroughAll"
doc.recompute()

chamfer4 = body.newObject("PartDesign::Chamfer", "Chamfer003")
chamfer4.Base = (pocket4, edges_at(pocket4, [
    (-32.755, 28, 6.679),
    (17.295, 31, 5),
    (36.295, -24, 5),
    (-23.705, -24, 5),
    (-30.45, -41.004, 11.5),
    (-8.983, -42.529, 11.5),
]))
chamfer4.Size = 0.4

doc.recompute()
